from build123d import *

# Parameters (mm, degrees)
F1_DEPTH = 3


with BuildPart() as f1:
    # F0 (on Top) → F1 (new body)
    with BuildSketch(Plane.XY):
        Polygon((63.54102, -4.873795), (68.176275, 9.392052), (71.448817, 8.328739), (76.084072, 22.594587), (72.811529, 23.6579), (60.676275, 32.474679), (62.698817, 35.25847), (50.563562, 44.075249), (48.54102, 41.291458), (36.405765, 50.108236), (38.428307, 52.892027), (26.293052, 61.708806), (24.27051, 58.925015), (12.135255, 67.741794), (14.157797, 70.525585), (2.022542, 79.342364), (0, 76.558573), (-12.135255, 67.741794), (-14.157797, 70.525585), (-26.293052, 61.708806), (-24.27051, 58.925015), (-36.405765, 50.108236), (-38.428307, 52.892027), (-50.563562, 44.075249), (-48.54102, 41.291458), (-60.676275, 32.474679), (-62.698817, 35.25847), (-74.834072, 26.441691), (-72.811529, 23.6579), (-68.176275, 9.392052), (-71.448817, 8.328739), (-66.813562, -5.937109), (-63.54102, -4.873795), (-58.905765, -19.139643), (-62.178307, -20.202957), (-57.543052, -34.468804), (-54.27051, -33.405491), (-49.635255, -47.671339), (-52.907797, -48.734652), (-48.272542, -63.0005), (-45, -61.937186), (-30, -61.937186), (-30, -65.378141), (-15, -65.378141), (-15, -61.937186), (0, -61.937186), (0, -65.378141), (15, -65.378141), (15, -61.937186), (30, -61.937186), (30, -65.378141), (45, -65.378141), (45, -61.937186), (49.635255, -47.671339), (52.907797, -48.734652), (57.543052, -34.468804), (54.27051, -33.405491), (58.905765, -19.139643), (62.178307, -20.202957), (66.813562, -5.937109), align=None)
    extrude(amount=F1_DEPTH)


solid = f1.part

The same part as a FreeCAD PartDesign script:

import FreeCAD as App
import Part
import Sketcher

V = App.Vector
Q = App.Units.Quantity

doc = App.newDocument("Part")
body = doc.addObject("PartDesign::Body", "Body")

# Sketch on XY plane
sketch1 = body.newObject("Sketcher::SketchObject", "Sketch")
sketch1.AttachmentSupport = (doc.getObject("XY_Plane"), [""])
sketch1.MapMode = "FlatFace"
sketch1.addGeometry([
    Part.LineSegment(V(63.5, -4.9, 0), V(68.2, 9.4, 0)),  # 0
    Part.LineSegment(V(68.2, 9.4, 0), V(71.4, 8.3, 0)),  # 1
    Part.LineSegment(V(71.4, 8.3, 0), V(76.1, 22.6, 0)),  # 2
    Part.LineSegment(V(76.1, 22.6, 0), V(72.8, 23.7, 0)),  # 3
    Part.LineSegment(V(72.8, 23.7, 0), V(60.7, 32.5, 0)),  # 4
    Part.LineSegment(V(60.7, 32.5, 0), V(62.7, 35.3, 0)),  # 5
    Part.LineSegment(V(62.7, 35.3, 0), V(50.6, 44.1, 0)),  # 6
    Part.LineSegment(V(50.6, 44.1, 0), V(48.5, 41.3, 0)),  # 7
    Part.LineSegment(V(48.5, 41.3, 0), V(36.4, 50.1, 0)),  # 8
    Part.LineSegment(V(36.4, 50.1, 0), V(38.4, 52.9, 0)),  # 9
    Part.LineSegment(V(38.4, 52.9, 0), V(26.3, 61.7, 0)),  # 10
    Part.LineSegment(V(26.3, 61.7, 0), V(24.3, 58.9, 0)),  # 11
    Part.LineSegment(V(24.3, 58.9, 0), V(12.1, 67.7, 0)),  # 12
    Part.LineSegment(V(12.1, 67.7, 0), V(14.2, 70.5, 0)),  # 13
    Part.LineSegment(V(14.2, 70.5, 0), V(2, 79.3, 0)),  # 14
    Part.LineSegment(V(2, 79.3, 0), V(0, 76.6, 0)),  # 15
    Part.LineSegment(V(0, 76.6, 0), V(-12.1, 67.7, 0)),  # 16
    Part.LineSegment(V(-12.1, 67.7, 0), V(-14.2, 70.5, 0)),  # 17
    Part.LineSegment(V(-14.2, 70.5, 0), V(-26.3, 61.7, 0)),  # 18
    Part.LineSegment(V(-26.3, 61.7, 0), V(-24.3, 58.9, 0)),  # 19
    Part.LineSegment(V(-24.3, 58.9, 0), V(-36.4, 50.1, 0)),  # 20
    Part.LineSegment(V(-36.4, 50.1, 0), V(-38.4, 52.9, 0)),  # 21
    Part.LineSegment(V(-38.4, 52.9, 0), V(-50.6, 44.1, 0)),  # 22
    Part.LineSegment(V(-50.6, 44.1, 0), V(-48.5, 41.3, 0)),  # 23
    Part.LineSegment(V(-48.5, 41.3, 0), V(-60.7, 32.5, 0)),  # 24
    Part.LineSegment(V(-60.7, 32.5, 0), V(-62.7, 35.3, 0)),  # 25
    Part.LineSegment(V(-62.7, 35.3, 0), V(-74.8, 26.4, 0)),  # 26
    Part.LineSegment(V(-74.8, 26.4, 0), V(-72.8, 23.7, 0)),  # 27
    Part.LineSegment(V(-72.8, 23.7, 0), V(-68.2, 9.4, 0)),  # 28
    Part.LineSegment(V(-68.2, 9.4, 0), V(-71.4, 8.3, 0)),  # 29
    Part.LineSegment(V(-71.4, 8.3, 0), V(-66.8, -5.9, 0)),  # 30
    Part.LineSegment(V(-66.8, -5.9, 0), V(-63.5, -4.9, 0)),  # 31
    Part.LineSegment(V(-63.5, -4.9, 0), V(-58.9, -19.1, 0)),  # 32
    Part.LineSegment(V(-58.9, -19.1, 0), V(-62.2, -20.2, 0)),  # 33
    Part.LineSegment(V(-62.2, -20.2, 0), V(-57.5, -34.5, 0)),  # 34
    Part.LineSegment(V(-57.5, -34.5, 0), V(-54.3, -33.4, 0)),  # 35
    Part.LineSegment(V(-54.3, -33.4, 0), V(-49.6, -47.7, 0)),  # 36
    Part.LineSegment(V(-49.6, -47.7, 0), V(-52.9, -48.7, 0)),  # 37
    Part.LineSegment(V(-52.9, -48.7, 0), V(-48.3, -63, 0)),  # 38
    Part.LineSegment(V(-48.3, -63, 0), V(-45, -61.9, 0)),  # 39
    Part.LineSegment(V(-45, -61.9, 0), V(-30, -61.9, 0)),  # 40
    Part.LineSegment(V(-30, -61.9, 0), V(-30, -65.4, 0)),  # 41
    Part.LineSegment(V(-30, -65.4, 0), V(-15, -65.4, 0)),  # 42
    Part.LineSegment(V(-15, -65.4, 0), V(-15, -61.9, 0)),  # 43
    Part.LineSegment(V(-15, -61.9, 0), V(0, -61.9, 0)),  # 44
    Part.LineSegment(V(0, -61.9, 0), V(0, -65.4, 0)),  # 45
    Part.LineSegment(V(0, -65.4, 0), V(15, -65.4, 0)),  # 46
    Part.LineSegment(V(15, -65.4, 0), V(15, -61.9, 0)),  # 47
    Part.LineSegment(V(15, -61.9, 0), V(30, -61.9, 0)),  # 48
    Part.LineSegment(V(30, -61.9, 0), V(30, -65.4, 0)),  # 49
    Part.LineSegment(V(30, -65.4, 0), V(45, -65.4, 0)),  # 50
    Part.LineSegment(V(45, -65.4, 0), V(45, -61.9, 0)),  # 51
    Part.LineSegment(V(45, -61.9, 0), V(49.6, -47.7, 0)),  # 52
    Part.LineSegment(V(49.6, -47.7, 0), V(52.9, -48.7, 0)),  # 53
    Part.LineSegment(V(52.9, -48.7, 0), V(57.5, -34.5, 0)),  # 54
    Part.LineSegment(V(57.5, -34.5, 0), V(54.3, -33.4, 0)),  # 55
    Part.LineSegment(V(54.3, -33.4, 0), V(58.9, -19.1, 0)),  # 56
    Part.LineSegment(V(58.9, -19.1, 0), V(62.2, -20.2, 0)),  # 57
    Part.LineSegment(V(62.2, -20.2, 0), V(66.8, -5.9, 0)),  # 58
    Part.LineSegment(V(66.8, -5.9, 0), V(63.5, -4.9, 0)),  # 59
], False)
sketch1.addConstraint([
    Sketcher.Constraint("Coincident", 0, 2, 1, 1),
    Sketcher.Constraint("Coincident", 1, 2, 2, 1),
    Sketcher.Constraint("Coincident", 2, 2, 3, 1),
    Sketcher.Constraint("Coincident", 3, 2, 4, 1),
    Sketcher.Constraint("Coincident", 4, 2, 5, 1),
    Sketcher.Constraint("Coincident", 5, 2, 6, 1),
    Sketcher.Constraint("Coincident", 6, 2, 7, 1),
    Sketcher.Constraint("Coincident", 7, 2, 8, 1),
    Sketcher.Constraint("Coincident", 8, 2, 9, 1),
    Sketcher.Constraint("Coincident", 9, 2, 10, 1),
    Sketcher.Constraint("Coincident", 10, 2, 11, 1),
    Sketcher.Constraint("Coincident", 11, 2, 12, 1),
    Sketcher.Constraint("Coincident", 12, 2, 13, 1),
    Sketcher.Constraint("Coincident", 13, 2, 14, 1),
    Sketcher.Constraint("Coincident", 14, 2, 15, 1),
    Sketcher.Constraint("Coincident", 15, 2, 16, 1),
    Sketcher.Constraint("Coincident", 16, 2, 17, 1),
    Sketcher.Constraint("Coincident", 17, 2, 18, 1),
    Sketcher.Constraint("Coincident", 18, 2, 19, 1),
    Sketcher.Constraint("Coincident", 19, 2, 20, 1),
    Sketcher.Constraint("Coincident", 20, 2, 21, 1),
    Sketcher.Constraint("Coincident", 21, 2, 22, 1),
    Sketcher.Constraint("Coincident", 22, 2, 23, 1),
    Sketcher.Constraint("Coincident", 23, 2, 24, 1),
    Sketcher.Constraint("Coincident", 24, 2, 25, 1),
    Sketcher.Constraint("Coincident", 25, 2, 26, 1),
    Sketcher.Constraint("Coincident", 26, 2, 27, 1),
    Sketcher.Constraint("Coincident", 27, 2, 28, 1),
    Sketcher.Constraint("Coincident", 28, 2, 29, 1),
    Sketcher.Constraint("Coincident", 29, 2, 30, 1),
    Sketcher.Constraint("Coincident", 30, 2, 31, 1),
    Sketcher.Constraint("Coincident", 31, 2, 32, 1),
    Sketcher.Constraint("Coincident", 32, 2, 33, 1),
    Sketcher.Constraint("Coincident", 33, 2, 34, 1),
    Sketcher.Constraint("Coincident", 34, 2, 35, 1),
    Sketcher.Constraint("Coincident", 35, 2, 36, 1),
    Sketcher.Constraint("Coincident", 36, 2, 37, 1),
    Sketcher.Constraint("Coincident", 37, 2, 38, 1),
    Sketcher.Constraint("Coincident", 38, 2, 39, 1),
    Sketcher.Constraint("Coincident", 39, 2, 40, 1),
    Sketcher.Constraint("Coincident", 40, 2, 41, 1),
    Sketcher.Constraint("Coincident", 41, 2, 42, 1),
    Sketcher.Constraint("Coincident", 42, 2, 43, 1),
    Sketcher.Constraint("Coincident", 43, 2, 44, 1),
    Sketcher.Constraint("Coincident", 44, 2, 45, 1),
    Sketcher.Constraint("Coincident", 45, 2, 46, 1),
    Sketcher.Constraint("Coincident", 46, 2, 47, 1),
    Sketcher.Constraint("Coincident", 47, 2, 48, 1),
    Sketcher.Constraint("Coincident", 48, 2, 49, 1),
    Sketcher.Constraint("Coincident", 49, 2, 50, 1),
    Sketcher.Constraint("Coincident", 50, 2, 51, 1),
    Sketcher.Constraint("Coincident", 51, 2, 52, 1),
    Sketcher.Constraint("Coincident", 52, 2, 53, 1),
    Sketcher.Constraint("Coincident", 53, 2, 54, 1),
    Sketcher.Constraint("Coincident", 54, 2, 55, 1),
    Sketcher.Constraint("Coincident", 55, 2, 56, 1),
    Sketcher.Constraint("Coincident", 56, 2, 57, 1),
    Sketcher.Constraint("Coincident", 57, 2, 58, 1),
    Sketcher.Constraint("Coincident", 58, 2, 59, 1),
    Sketcher.Constraint("Coincident", 59, 2, 0, 1),
    Sketcher.Constraint("Horizontal", 40),
    Sketcher.Constraint("Vertical", 41),
    Sketcher.Constraint("Horizontal", 42),
    Sketcher.Constraint("Vertical", 43),
    Sketcher.Constraint("Horizontal", 44),
    Sketcher.Constraint("Vertical", 45),
    Sketcher.Constraint("Horizontal", 46),
    Sketcher.Constraint("Vertical", 47),
    Sketcher.Constraint("Horizontal", 48),
    Sketcher.Constraint("Vertical", 49),
    Sketcher.Constraint("Horizontal", 50),
    Sketcher.Constraint("Vertical", 51),
    Sketcher.Constraint("Symmetric", 12, 2, 16, 2, -2),
    Sketcher.Constraint("Symmetric", 13, 2, 17, 2, -2),
    Sketcher.Constraint("Symmetric", 10, 2, 18, 2, -2),
    Sketcher.Constraint("Symmetric", 11, 2, 19, 2, -2),
    Sketcher.Constraint("Symmetric", 8, 2, 20, 2, -2),
    Sketcher.Constraint("Symmetric", 9, 2, 21, 2, -2),
    Sketcher.Constraint("Symmetric", 6, 2, 22, 2, -2),
    Sketcher.Constraint("Symmetric", 7, 2, 23, 2, -2),
    Sketcher.Constraint("Symmetric", 4, 2, 24, 2, -2),
    Sketcher.Constraint("Symmetric", 5, 2, 25, 2, -2),
    Sketcher.Constraint("Symmetric", 3, 2, 27, 2, -2),
    Sketcher.Constraint("Symmetric", 0, 2, 28, 2, -2),
    Sketcher.Constraint("Symmetric", 1, 2, 29, 2, -2),
    Sketcher.Constraint("Symmetric", 42, 2, 46, 2, -2),
    Sketcher.Constraint("Symmetric", 40, 2, 48, 2, -2),
    Sketcher.Constraint("Symmetric", 39, 2, 51, 2, -2),
    Sketcher.Constraint("Symmetric", 36, 2, 52, 2, -2),
    Sketcher.Constraint("Symmetric", 37, 2, 53, 2, -2),
    Sketcher.Constraint("Symmetric", 34, 2, 54, 2, -2),
    Sketcher.Constraint("Symmetric", 35, 2, 55, 2, -2),
    Sketcher.Constraint("Symmetric", 32, 2, 56, 2, -2),
    Sketcher.Constraint("Symmetric", 33, 2, 57, 2, -2),
    Sketcher.Constraint("Symmetric", 30, 2, 58, 2, -2),
    Sketcher.Constraint("Symmetric", 31, 2, 59, 2, -2),
    Sketcher.Constraint("PointOnObject", 15, 2, -2),
    Sketcher.Constraint("PointOnObject", 44, 2, -2),
    Sketcher.Constraint("Perpendicular", 0, 1),
    Sketcher.Constraint("Perpendicular", 1, 2),
    Sketcher.Constraint("Perpendicular", 2, 3),
    Sketcher.Constraint("Perpendicular", 4, 5),
    Sketcher.Constraint("Perpendicular", 5, 6),
    Sketcher.Constraint("Perpendicular", 6, 7),
    Sketcher.Constraint("Perpendicular", 7, 8),
    Sketcher.Constraint("Perpendicular", 8, 9),
    Sketcher.Constraint("Perpendicular", 9, 10),
    Sketcher.Constraint("Perpendicular", 10, 11),
    Sketcher.Constraint("Perpendicular", 11, 12),
    Sketcher.Constraint("Perpendicular", 12, 13),
    Sketcher.Constraint("Perpendicular", 13, 14),
    Sketcher.Constraint("Perpendicular", 14, 15),
    Sketcher.Constraint("Perpendicular", 16, 17),
    Sketcher.Constraint("Perpendicular", 17, 18),
    Sketcher.Constraint("Perpendicular", 19, 20),
    Sketcher.Constraint("Perpendicular", 21, 22),
    Sketcher.Constraint("Perpendicular", 23, 24),
    Sketcher.Constraint("Perpendicular", 25, 26),
    Sketcher.Constraint("Perpendicular", 26, 27),
    Sketcher.Constraint("Perpendicular", 28, 29),
    Sketcher.Constraint("Perpendicular", 29, 30),
    Sketcher.Constraint("Perpendicular", 30, 31),
    Sketcher.Constraint("Perpendicular", 31, 32),
    Sketcher.Constraint("Perpendicular", 32, 33),
    Sketcher.Constraint("Perpendicular", 33, 34),
    Sketcher.Constraint("Perpendicular", 34, 35),
    Sketcher.Constraint("Perpendicular", 35, 36),
    Sketcher.Constraint("Perpendicular", 36, 37),
    Sketcher.Constraint("Perpendicular", 37, 38),
    Sketcher.Constraint("Perpendicular", 38, 39),
    Sketcher.Constraint("Perpendicular", 3, 52),
    Sketcher.Constraint("Perpendicular", 53, 54),
    Sketcher.Constraint("Perpendicular", 55, 56),
    Sketcher.Constraint("Perpendicular", 57, 58),
    Sketcher.Constraint("Horizontal", 40, 2, 43, 2),
    Sketcher.Constraint("Horizontal", 46, 2, 49, 2),
    Sketcher.Constraint("Equal", 40, 42),
    Sketcher.Constraint("Equal", 42, 44),
    Sketcher.Constraint("Equal", 0, 2),
    Sketcher.Constraint("Equal", 2, 4),
    Sketcher.Constraint("Equal", 3, 5),
    Sketcher.Constraint("Equal", 4, 6),
    Sketcher.Constraint("Equal", 6, 8),
    Sketcher.Constraint("Equal", 8, 10),
    Sketcher.Constraint("Equal", 10, 12),
    Sketcher.Constraint("Equal", 12, 14),
    Sketcher.Constraint("Equal", 30, 32),
    Sketcher.Constraint("Equal", 32, 34),
    Sketcher.Constraint("Equal", 34, 36),
    Sketcher.Constraint("Equal", 36, 38),
    Sketcher.Constraint("DistanceX", 40, 1, 40, 2, 15.0),
    Sketcher.Constraint("Angle", 0, Q("71.999999 deg")),
    Sketcher.Constraint("Angle", 4, Q("143.999997 deg")),
    Sketcher.Constraint("DistanceX", 5, 2, 1, 2, 8.75),
    Sketcher.Constraint("DistanceY", -1, 1, 3, 2, 23.6579),
    Sketcher.Constraint("DistanceY", 41, 2, 36, 2, 17.706802),
])
pad1 = body.newObject("PartDesign::Pad", "Pad")
pad1.Profile = sketch1
pad1.Length = 3

doc.recompute()
